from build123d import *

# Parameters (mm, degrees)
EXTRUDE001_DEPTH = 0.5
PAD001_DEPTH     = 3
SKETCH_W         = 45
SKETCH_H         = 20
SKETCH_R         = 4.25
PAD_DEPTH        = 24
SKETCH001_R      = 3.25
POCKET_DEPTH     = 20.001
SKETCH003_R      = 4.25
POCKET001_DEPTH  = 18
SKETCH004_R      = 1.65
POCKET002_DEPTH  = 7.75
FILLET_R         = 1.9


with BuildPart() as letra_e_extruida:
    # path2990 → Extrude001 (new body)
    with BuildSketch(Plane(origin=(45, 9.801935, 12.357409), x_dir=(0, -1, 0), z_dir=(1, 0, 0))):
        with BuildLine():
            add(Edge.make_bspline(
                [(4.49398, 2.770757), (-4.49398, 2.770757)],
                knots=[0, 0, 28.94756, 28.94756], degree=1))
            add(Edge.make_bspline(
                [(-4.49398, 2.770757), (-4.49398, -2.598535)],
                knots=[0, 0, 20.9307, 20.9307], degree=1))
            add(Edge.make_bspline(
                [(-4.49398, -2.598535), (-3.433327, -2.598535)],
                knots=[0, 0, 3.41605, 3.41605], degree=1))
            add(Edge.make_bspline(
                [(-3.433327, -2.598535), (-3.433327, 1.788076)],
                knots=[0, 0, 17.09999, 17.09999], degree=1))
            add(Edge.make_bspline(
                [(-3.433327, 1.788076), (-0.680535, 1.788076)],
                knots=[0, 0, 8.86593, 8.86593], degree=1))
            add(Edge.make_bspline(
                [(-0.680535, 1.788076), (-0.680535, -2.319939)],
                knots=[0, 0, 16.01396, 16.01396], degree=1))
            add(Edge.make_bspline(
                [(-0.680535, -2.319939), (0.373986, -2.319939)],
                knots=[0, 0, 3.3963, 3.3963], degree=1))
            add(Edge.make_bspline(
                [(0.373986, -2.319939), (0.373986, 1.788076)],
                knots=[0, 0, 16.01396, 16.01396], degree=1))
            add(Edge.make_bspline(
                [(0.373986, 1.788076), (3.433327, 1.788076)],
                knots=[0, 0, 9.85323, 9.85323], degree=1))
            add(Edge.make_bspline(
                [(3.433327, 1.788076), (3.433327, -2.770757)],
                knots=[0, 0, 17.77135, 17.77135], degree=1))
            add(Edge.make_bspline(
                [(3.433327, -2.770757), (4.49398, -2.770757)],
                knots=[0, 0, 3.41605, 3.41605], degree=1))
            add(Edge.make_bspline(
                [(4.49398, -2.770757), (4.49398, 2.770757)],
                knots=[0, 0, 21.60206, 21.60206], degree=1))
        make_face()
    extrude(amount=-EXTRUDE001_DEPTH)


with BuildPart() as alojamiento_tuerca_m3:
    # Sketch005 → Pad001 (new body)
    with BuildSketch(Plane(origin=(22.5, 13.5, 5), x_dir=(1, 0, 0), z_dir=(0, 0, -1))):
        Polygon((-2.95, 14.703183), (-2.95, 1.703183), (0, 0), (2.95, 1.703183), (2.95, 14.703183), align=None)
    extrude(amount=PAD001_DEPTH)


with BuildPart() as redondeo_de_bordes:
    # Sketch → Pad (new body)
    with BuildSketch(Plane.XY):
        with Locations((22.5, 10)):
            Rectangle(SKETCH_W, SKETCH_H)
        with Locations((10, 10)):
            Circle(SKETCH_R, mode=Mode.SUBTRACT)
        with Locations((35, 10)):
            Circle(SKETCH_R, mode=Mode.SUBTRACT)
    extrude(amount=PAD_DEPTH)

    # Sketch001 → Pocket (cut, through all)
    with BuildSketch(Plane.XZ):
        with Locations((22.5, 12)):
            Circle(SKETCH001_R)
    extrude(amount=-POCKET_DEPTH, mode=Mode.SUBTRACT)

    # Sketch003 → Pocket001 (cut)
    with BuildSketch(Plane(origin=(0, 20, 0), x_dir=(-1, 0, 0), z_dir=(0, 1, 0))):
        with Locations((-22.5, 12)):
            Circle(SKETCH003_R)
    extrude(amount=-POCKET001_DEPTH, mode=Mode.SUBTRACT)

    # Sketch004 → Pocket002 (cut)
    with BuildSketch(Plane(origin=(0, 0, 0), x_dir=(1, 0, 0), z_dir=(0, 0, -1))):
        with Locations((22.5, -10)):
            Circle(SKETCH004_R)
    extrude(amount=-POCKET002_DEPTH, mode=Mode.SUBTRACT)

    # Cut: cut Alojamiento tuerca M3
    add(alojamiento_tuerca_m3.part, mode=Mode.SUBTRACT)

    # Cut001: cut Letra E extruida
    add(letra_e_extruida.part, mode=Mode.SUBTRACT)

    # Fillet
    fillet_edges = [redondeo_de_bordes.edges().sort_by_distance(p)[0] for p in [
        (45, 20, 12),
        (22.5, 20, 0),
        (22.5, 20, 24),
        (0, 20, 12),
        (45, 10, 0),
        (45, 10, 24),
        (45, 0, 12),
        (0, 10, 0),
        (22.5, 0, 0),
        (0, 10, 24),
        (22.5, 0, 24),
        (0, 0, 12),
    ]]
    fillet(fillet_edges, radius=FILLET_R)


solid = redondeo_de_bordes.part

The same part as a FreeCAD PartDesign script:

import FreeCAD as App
import Part
import Sketcher
from FreeCAD import Vector
Q = App.Units.Quantity


def edges_at(feature, points):
    """Names of the edges that pass closest to the given points."""
    edges = feature.Shape.Edges
    near = lambda p: min(range(len(edges)), key=lambda i: edges[i].distToShape(Part.Vertex(*p))[0])
    return sorted({f"Edge{near(p) + 1}" for p in points})


def add_polygon(sketch, points):
    """Adds a closed chain of lines whose ends are joined by coincident constraints."""
    first, n = sketch.GeometryCount, len(points)
    for a, b in zip(points, points[1:] + points[:1]):
        sketch.addGeometry(Part.LineSegment(App.Vector(*a, 0), App.Vector(*b, 0)), False)
    for i in range(n):
        sketch.addConstraint(Sketcher.Constraint("Coincident", first + i, 2, first + (i + 1) % n, 1))

doc = App.newDocument("Part")
body = doc.addObject("PartDesign::Body", "Body")

# Sketch on YZ plane
sketch1 = body.newObject("Sketcher::SketchObject", "Sketch")
sketch1.AttachmentSupport = (doc.getObject("YZ_Plane"), [""])
sketch1.MapMode = "FlatFace"
sketch1.AttachmentOffset = App.Placement(Vector(0, 0, 45), App.Rotation())
sketch1.addGeometry(Part.BSplineCurve([Vector(5.307955, 9.586652, 0), Vector(14.295915, 9.586652, 0)], [2, 2], [0, 28.94756], False, 1, [1, 1], False), False)
sketch1.addGeometry(Part.BSplineCurve([Vector(14.295915, 9.586652, 0), Vector(14.295915, 14.955944, 0)], [2, 2], [0, 20.9307], False, 1, [1, 1], False), False)
sketch1.addGeometry(Part.BSplineCurve([Vector(14.295915, 14.955944, 0), Vector(13.235262, 14.955944, 0)], [2, 2], [0, 3.41605], False, 1, [1, 1], False), False)
sketch1.addGeometry(Part.BSplineCurve([Vector(13.235262, 14.955944, 0), Vector(13.235262, 10.569333, 0)], [2, 2], [0, 17.09999], False, 1, [1, 1], False), False)
sketch1.addGeometry(Part.BSplineCurve([Vector(13.235262, 10.569333, 0), Vector(10.48247, 10.569333, 0)], [2, 2], [0, 8.86593], False, 1, [1, 1], False), False)
sketch1.addGeometry(Part.BSplineCurve([Vector(10.48247, 10.569333, 0), Vector(10.48247, 14.677348, 0)], [2, 2], [0, 16.01396], False, 1, [1, 1], False), False)
sketch1.addGeometry(Part.BSplineCurve([Vector(10.48247, 14.677348, 0), Vector(9.427949, 14.677348, 0)], [2, 2], [0, 3.3963], False, 1, [1, 1], False), False)
sketch1.addGeometry(Part.BSplineCurve([Vector(9.427949, 14.677348, 0), Vector(9.427949, 10.569333, 0)], [2, 2], [0, 16.01396], False, 1, [1, 1], False), False)
sketch1.addGeometry(Part.BSplineCurve([Vector(9.427949, 10.569333, 0), Vector(6.368608, 10.569333, 0)], [2, 2], [0, 9.85323], False, 1, [1, 1], False), False)
sketch1.addGeometry(Part.BSplineCurve([Vector(6.368608, 10.569333, 0), Vector(6.368608, 15.128166, 0)], [2, 2], [0, 17.77135], False, 1, [1, 1], False), False)
sketch1.addGeometry(Part.BSplineCurve([Vector(6.368608, 15.128166, 0), Vector(5.307955, 15.128166, 0)], [2, 2], [0, 3.41605], False, 1, [1, 1], False), False)
sketch1.addGeometry(Part.BSplineCurve([Vector(5.307955, 15.128166, 0), Vector(5.307955, 9.586652, 0)], [2, 2], [0, 21.60206], False, 1, [1, 1], False), False)
sketch1.addConstraint(Sketcher.Constraint("Block", 0))
sketch1.addConstraint(Sketcher.Constraint("Block", 1))
sketch1.addConstraint(Sketcher.Constraint("Block", 2))
sketch1.addConstraint(Sketcher.Constraint("Block", 3))
sketch1.addConstraint(Sketcher.Constraint("Block", 4))
sketch1.addConstraint(Sketcher.Constraint("Block", 5))
sketch1.addConstraint(Sketcher.Constraint("Block", 6))
sketch1.addConstraint(Sketcher.Constraint("Block", 7))
sketch1.addConstraint(Sketcher.Constraint("Block", 8))
sketch1.addConstraint(Sketcher.Constraint("Block", 9))
sketch1.addConstraint(Sketcher.Constraint("Block", 10))
sketch1.addConstraint(Sketcher.Constraint("Block", 11))
pad1 = body.newObject("PartDesign::Pad", "Pad")
pad1.Profile = sketch1
pad1.Length = 0.5
pad1.Reversed = True
body2 = doc.addObject("PartDesign::Body", "Body001")

# Sketch on XY plane
sketch2 = body2.newObject("Sketcher::SketchObject", "Sketch001")
sketch2.AttachmentSupport = (doc.getObject("XY_Plane001"), [""])
sketch2.MapMode = "FlatFace"
sketch2.AttachmentOffset = App.Placement(Vector(0, 0, 5), App.Rotation())
add_polygon(sketch2, [(19.6, -1.2), (19.6, 11.8), (22.5, 13.5), (25.4, 11.8), (25.4, -1.2)])  # lines 0-4
sketch2.addConstraint(Sketcher.Constraint("Vertical", 0))
sketch2.addConstraint(Sketcher.Constraint("Vertical", 3))
sketch2.addConstraint(Sketcher.Constraint("Horizontal", 4))
sketch2.addConstraint(Sketcher.Constraint("Horizontal", 0, 2, 2, 2))
sketch2.addConstraint(Sketcher.Constraint("Equal", 1, 2))
sketch2.addConstraint(Sketcher.Constraint("DistanceY", 0, 1, 0, 2, 13.0))
sketch2.addConstraint(Sketcher.Constraint("Angle", 1, Q("29.999996 deg")))
sketch2.addConstraint(Sketcher.Constraint("DistanceX", 4, 2, 4, 1, 5.9))
sketch2.addConstraint(Sketcher.Constraint("DistanceX", -1, 1, 1, 2, 22.5))
sketch2.addConstraint(Sketcher.Constraint("DistanceY", -1, 1, 1, 2, 13.5))
pad2 = body2.newObject("PartDesign::Pad", "Pad001")
pad2.Profile = sketch2
pad2.Length = 3
pad2.Reversed = True
body3 = doc.addObject("PartDesign::Body", "Body002")

# Sketch on XY plane
sketch3 = body3.newObject("Sketcher::SketchObject", "Sketch002")
sketch3.AttachmentSupport = (doc.getObject("XY_Plane002"), [""])
sketch3.MapMode = "FlatFace"
add_polygon(sketch3, [(0, 20), (0, 0), (45, 0), (45, 20)])  # lines 0-3
sketch3.addGeometry(Part.Circle(Vector(10, 10, 0), Vector(0, 0, 1), 4.2), False)  # 4
sketch3.addGeometry(Part.Circle(Vector(35, 10, 0), Vector(0, 0, 1), 4.2), False)  # 5
sketch3.addConstraint(Sketcher.Constraint("Vertical", 0))
sketch3.addConstraint(Sketcher.Constraint("Horizontal", 1))
sketch3.addConstraint(Sketcher.Constraint("Vertical", 2))
sketch3.addConstraint(Sketcher.Constraint("Horizontal", 3))
sketch3.addConstraint(Sketcher.Constraint("Coincident", 0, 2, -1, 1))
sketch3.addConstraint(Sketcher.Constraint("Equal", 4, 5))
sketch3.addConstraint(Sketcher.Constraint("Horizontal", 4, 3, 5, 3))
sketch3.addConstraint(Sketcher.Constraint("Diameter", 4, 8.5))
sketch3.addConstraint(Sketcher.Constraint("DistanceX", 1, 1, 1, 2, 45.0))
sketch3.addConstraint(Sketcher.Constraint("DistanceY", 0, 2, 0, 1, 20.0))
sketch3.addConstraint(Sketcher.Constraint("DistanceX", -1, 1, 4, 3, 10.0))
sketch3.addConstraint(Sketcher.Constraint("DistanceY", -1, 1, 4, 3, 10.0))
sketch3.addConstraint(Sketcher.Constraint("DistanceX", -1, 1, 5, 3, 35.0))
pad3 = body3.newObject("PartDesign::Pad", "Pad002")
pad3.Profile = sketch3
pad3.Length = 24

# Sketch on XZ plane
sketch4 = body3.newObject("Sketcher::SketchObject", "Sketch003")
sketch4.AttachmentSupport = (doc.getObject("XZ_Plane002"), [""])
sketch4.MapMode = "FlatFace"
sketch4.addGeometry(Part.Circle(Vector(22.5, 12, 0), Vector(0, 0, 1), 3.2), False)
sketch4.addConstraint(Sketcher.Constraint("Diameter", 0, 6.5))
sketch4.addConstraint(Sketcher.Constraint("DistanceY", -1, 1, 0, 3, 12.0))
sketch4.addConstraint(Sketcher.Constraint("DistanceX", -1, 1, 0, 3, 22.5))
pocket1 = body3.newObject("PartDesign::Pocket", "Pocket")
pocket1.Profile = sketch4
pocket1.Type = "ThroughAll"

# Sketch on XZ plane
sketch5 = body3.newObject("Sketcher::SketchObject", "Sketch004")
sketch5.AttachmentSupport = (doc.getObject("XZ_Plane002"), [""])
sketch5.MapMode = "FlatFace"
sketch5.AttachmentOffset = App.Placement(Vector(0, 0, -20), App.Rotation())
sketch5.addGeometry(Part.Circle(Vector(22.5, 12, 0), Vector(0, 0, 1), 4.2), False)
sketch5.addConstraint(Sketcher.Constraint("Diameter", 0, 8.5))
sketch5.addConstraint(Sketcher.Constraint("DistanceY", -1, 1, 0, 3, 12.0))
sketch5.addConstraint(Sketcher.Constraint("DistanceX", -1, 1, 0, 3, 22.5))
pocket2 = body3.newObject("PartDesign::Pocket", "Pocket001")
pocket2.Profile = sketch5
pocket2.Length = 18
pocket2.Reversed = True

# Sketch on XY plane
sketch6 = body3.newObject("Sketcher::SketchObject", "Sketch005")
sketch6.AttachmentSupport = (doc.getObject("XY_Plane002"), [""])
sketch6.MapMode = "FlatFace"
sketch6.addGeometry(Part.Circle(Vector(22.5, 10, 0), Vector(0, 0, 1), 1.6), False)
sketch6.addConstraint(Sketcher.Constraint("Diameter", 0, 3.3))
sketch6.addConstraint(Sketcher.Constraint("DistanceY", -1, 1, 0, 3, 10.0))
sketch6.addConstraint(Sketcher.Constraint("DistanceX", -1, 1, 0, 3, 22.5))
pocket3 = body3.newObject("PartDesign::Pocket", "Pocket002")
pocket3.Profile = sketch6
pocket3.Length = 7.75
pocket3.Reversed = True
doc.recompute()

boolean = body3.newObject("PartDesign::Boolean", "Boolean")
boolean.Type = "Cut"
boolean.addObjects([body2])
doc.recompute()

boolean2 = body3.newObject("PartDesign::Boolean", "Boolean001")
boolean2.Type = "Cut"
boolean2.addObjects([body])
doc.recompute()

fillet = body3.newObject("PartDesign::Fillet", "Fillet")
fillet.Base = (boolean2, edges_at(boolean2, [
    (45, 20, 12),
    (22.5, 20, 0),
    (22.5, 20, 24),
    (0, 20, 12),
    (45, 10, 0),
    (45, 10, 24),
    (45, 0, 12),
    (0, 10, 0),
    (22.5, 0, 0),
    (0, 10, 24),
    (22.5, 0, 24),
    (0, 0, 12),
]))
fillet.Radius = 1.9

doc.recompute()
